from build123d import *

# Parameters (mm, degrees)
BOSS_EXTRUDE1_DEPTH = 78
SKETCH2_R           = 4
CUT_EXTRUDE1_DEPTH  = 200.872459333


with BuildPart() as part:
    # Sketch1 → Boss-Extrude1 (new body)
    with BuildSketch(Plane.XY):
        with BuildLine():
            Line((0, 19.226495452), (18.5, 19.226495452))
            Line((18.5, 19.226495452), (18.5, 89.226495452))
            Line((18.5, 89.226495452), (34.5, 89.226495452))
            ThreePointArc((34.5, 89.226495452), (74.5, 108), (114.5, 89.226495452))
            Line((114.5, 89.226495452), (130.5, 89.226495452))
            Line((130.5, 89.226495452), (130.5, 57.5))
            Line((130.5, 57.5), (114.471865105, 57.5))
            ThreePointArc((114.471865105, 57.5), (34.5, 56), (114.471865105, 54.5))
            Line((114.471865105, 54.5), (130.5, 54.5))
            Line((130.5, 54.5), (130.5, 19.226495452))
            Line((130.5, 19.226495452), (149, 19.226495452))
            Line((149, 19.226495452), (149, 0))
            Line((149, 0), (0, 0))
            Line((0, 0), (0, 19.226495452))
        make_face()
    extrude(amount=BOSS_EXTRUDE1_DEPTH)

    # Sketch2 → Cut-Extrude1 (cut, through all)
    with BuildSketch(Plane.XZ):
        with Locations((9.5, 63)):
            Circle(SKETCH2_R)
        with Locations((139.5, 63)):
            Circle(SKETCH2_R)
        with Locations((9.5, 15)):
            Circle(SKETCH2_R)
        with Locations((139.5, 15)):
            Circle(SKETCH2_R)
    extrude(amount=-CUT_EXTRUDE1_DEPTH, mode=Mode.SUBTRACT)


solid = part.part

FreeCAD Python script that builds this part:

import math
import FreeCAD as App
import Part
import Sketcher
from FreeCAD import Vector
Q = App.Units.Quantity

doc = App.newDocument("Part")
body = doc.addObject("PartDesign::Body", "Body")

# Sketch on XY plane
sketch1 = body.newObject("Sketcher::SketchObject", "Sketch")
sketch1.AttachmentSupport = (doc.getObject("XY_Plane"), [""])
sketch1.MapMode = "FlatFace"
sketch1.addGeometry([
    Part.LineSegment(Vector(18.5, 19.226495, 0), Vector(0, 19.226495, 0)),  # 0
    Part.LineSegment(Vector(0, 19.226495, 0), Vector(0, 0, 0)),  # 1
    Part.LineSegment(Vector(0, 0, 0), Vector(149, 0, 0)),  # 2
    Part.LineSegment(Vector(149, 0, 0), Vector(149, 19.226495, 0)),  # 3
    Part.LineSegment(Vector(149, 19.226495, 0), Vector(130.5, 19.226495, 0)),  # 4
    Part.LineSegment(Vector(130.5, 19.226495, 0), Vector(130.5, 54.5, 0)),  # 5
    Part.LineSegment(Vector(130.5, 54.5, 0), Vector(114.471865, 54.5, 0)),  # 6
    Part.ArcOfCircle(Part.Circle(Vector(74.5, 56, 0), Vector(0, 0, 1), 40), math.radians(2.149096), math.radians(357.850904)),  # 7
    Part.LineSegment(Vector(114.471865, 57.5, 0), Vector(130.5, 57.5, 0)),  # 8
    Part.LineSegment(Vector(130.5, 57.5, 0), Vector(130.5, 89.226495, 0)),  # 9
    Part.LineSegment(Vector(130.5, 89.226495, 0), Vector(114.5, 89.226495, 0)),  # 10
    Part.ArcOfCircle(Part.Circle(Vector(74.5, 56, 0), Vector(0, 0, 1), 52), math.radians(39.715137), math.radians(140.284863)),  # 11
    Part.LineSegment(Vector(34.5, 89.226495, 0), Vector(18.5, 89.226495, 0)),  # 12
    Part.LineSegment(Vector(18.5, 89.226495, 0), Vector(18.5, 19.226495, 0)),  # 13
], False)
sketch1.addConstraint([
    Sketcher.Constraint("Coincident", 0, 2, 1, 1),
    Sketcher.Constraint("Coincident", 1, 2, 2, 1),
    Sketcher.Constraint("Coincident", 2, 2, 3, 1),
    Sketcher.Constraint("Coincident", 3, 2, 4, 1),
    Sketcher.Constraint("Coincident", 4, 2, 5, 1),
    Sketcher.Constraint("Coincident", 5, 2, 6, 1),
    Sketcher.Constraint("Coincident", 6, 2, 7, 2),
    Sketcher.Constraint("Coincident", 7, 1, 8, 1),
    Sketcher.Constraint("Coincident", 8, 2, 9, 1),
    Sketcher.Constraint("Coincident", 9, 2, 10, 1),
    Sketcher.Constraint("Coincident", 10, 2, 11, 1),
    Sketcher.Constraint("Coincident", 11, 2, 12, 1),
    Sketcher.Constraint("Coincident", 12, 2, 13, 1),
    Sketcher.Constraint("Coincident", 13, 2, 0, 1),
    Sketcher.Constraint("Horizontal", 0),
    Sketcher.Constraint("Vertical", 1),
    Sketcher.Constraint("Horizontal", 2),
    Sketcher.Constraint("Vertical", 3),
    Sketcher.Constraint("Horizontal", 4),
    Sketcher.Constraint("Vertical", 5),
    Sketcher.Constraint("Horizontal", 6),
    Sketcher.Constraint("Horizontal", 8),
    Sketcher.Constraint("Vertical", 9),
    Sketcher.Constraint("Horizontal", 10),
    Sketcher.Constraint("Horizontal", 12),
    Sketcher.Constraint("Vertical", 13),
    Sketcher.Constraint("Coincident", 1, 2, -1, 1),
    Sketcher.Constraint("Coincident", 11, 3, 7, 3),
    Sketcher.Constraint("Horizontal", 0, 2, 3, 2),
    Sketcher.Constraint("Horizontal", 10, 2, 11, 2),
    Sketcher.Constraint("Vertical", 6, 2, 7, 1),
    Sketcher.Constraint("Vertical", 5, 2, 8, 2),
    Sketcher.Constraint("Equal", 0, 4),
    Sketcher.Constraint("Equal", 10, 12),
    Sketcher.Constraint("Radius", 7, Q("40 mm")),
    Sketcher.Constraint("Radius", 11, Q("52 mm")),
    Sketcher.Constraint("DistanceX", 2, 1, 2, 2, Q("149 mm")),
    Sketcher.Constraint("DistanceX", 10, 2, 10, 1, Q("16 mm")),
    Sketcher.Constraint("DistanceY", 13, 2, 13, 1, Q("70 mm")),
    Sketcher.Constraint("DistanceX", 0, 2, 0, 1, Q("18.5 mm")),
    Sketcher.Constraint("DistanceY", -1, 1, 7, 3, Q("56 mm")),
    Sketcher.Constraint("DistanceY", 6, 2, 7, 1, Q("3 mm")),
])
pad1 = body.newObject("PartDesign::Pad", "Pad")
pad1.Profile = sketch1
pad1.Length = 78

# Sketch on XZ plane
sketch2 = body.newObject("Sketcher::SketchObject", "Sketch001")
sketch2.AttachmentSupport = (doc.getObject("XZ_Plane"), [""])
sketch2.MapMode = "FlatFace"
sketch2.addGeometry([
    Part.Circle(Vector(9.5, 63, 0), Vector(0, 0, 1), 4),
    Part.Circle(Vector(139.5, 63, 0), Vector(0, 0, 1), 4),
    Part.Circle(Vector(9.5, 15, 0), Vector(0, 0, 1), 4),
    Part.Circle(Vector(139.5, 15, 0), Vector(0, 0, 1), 4),
], False)
sketch2.addConstraint([
    Sketcher.Constraint("Equal", 0, 1),
    Sketcher.Constraint("Equal", 1, 2),
    Sketcher.Constraint("Equal", 2, 3),
    Sketcher.Constraint("Horizontal", 0, 3, 1, 3),
    Sketcher.Constraint("Horizontal", 2, 3, 3, 3),
    Sketcher.Constraint("Vertical", 0, 3, 2, 3),
    Sketcher.Constraint("Vertical", 1, 3, 3, 3),
    Sketcher.Constraint("Diameter", 0, Q("8 mm")),
    Sketcher.Constraint("DistanceY", -1, 1, 0, 3, Q("63 mm")),
    Sketcher.Constraint("DistanceY", -1, 1, 2, 3, Q("15 mm")),
    Sketcher.Constraint("DistanceX", 0, 3, 1, 3, Q("130 mm")),
    Sketcher.Constraint("DistanceX", -1, 1, 0, 3, Q("9.5 mm")),
])
pocket1 = body.newObject("PartDesign::Pocket", "Pocket")
pocket1.Profile = sketch2
pocket1.Type = "ThroughAll"

doc.recompute()
